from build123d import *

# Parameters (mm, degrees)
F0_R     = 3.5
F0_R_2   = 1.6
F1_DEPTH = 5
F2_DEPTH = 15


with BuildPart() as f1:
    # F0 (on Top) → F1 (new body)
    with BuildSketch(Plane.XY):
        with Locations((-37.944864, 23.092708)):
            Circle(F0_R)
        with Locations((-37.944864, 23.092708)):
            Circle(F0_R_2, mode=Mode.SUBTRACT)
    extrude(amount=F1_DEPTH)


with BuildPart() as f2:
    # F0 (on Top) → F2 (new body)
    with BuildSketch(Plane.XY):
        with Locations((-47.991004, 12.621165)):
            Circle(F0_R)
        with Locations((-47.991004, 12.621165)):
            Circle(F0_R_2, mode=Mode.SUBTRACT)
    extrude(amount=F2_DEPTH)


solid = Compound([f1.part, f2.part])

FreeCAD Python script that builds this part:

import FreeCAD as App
import Part
import Sketcher
from FreeCAD import Vector
Q = App.Units.Quantity

doc = App.newDocument("Part")
body = doc.addObject("PartDesign::Body", "Body")

sketch1 = body.newObject("Sketcher::SketchObject", "Sketch")
sketch1.AttachmentSupport = (doc.getObject("XY_Plane"), [""])
sketch1.MapMode = "FlatFace"
sketch1.addGeometry(Part.Circle(Vector(-37.9, 23.1, 0), Vector(0, 0, 1), 3.5), False)
sketch1.addGeometry(Part.Circle(Vector(-37.9, 23.1, 0), Vector(0, 0, 1), 1.6), False)
sketch1.addConstraint(Sketcher.Constraint("Coincident", 1, 3, 0, 3))
sketch1.addConstraint(Sketcher.Constraint("Diameter", 0, Q("7 mm")))
sketch1.addConstraint(Sketcher.Constraint("Diameter", 1, Q("3.2 mm")))
sketch1.addConstraint(Sketcher.Constraint("DistanceX", 0, 3, -1, 1, Q("37.944864 mm")))
sketch1.addConstraint(Sketcher.Constraint("DistanceY", -1, 1, 0, 3, Q("23.092708 mm")))
pad1 = body.newObject("PartDesign::Pad", "Pad")
pad1.Profile = sketch1
pad1.Length = 5
body2 = doc.addObject("PartDesign::Body", "Body001")

sketch2 = body2.newObject("Sketcher::SketchObject", "Sketch001")
sketch2.AttachmentSupport = (doc.getObject("XY_Plane001"), [""])
sketch2.MapMode = "FlatFace"
sketch2.addGeometry(Part.Circle(Vector(-48, 12.6, 0), Vector(0, 0, 1), 3.5), False)
sketch2.addGeometry(Part.Circle(Vector(-48, 12.6, 0), Vector(0, 0, 1), 1.6), False)
sketch2.addConstraint(Sketcher.Constraint("Coincident", 1, 3, 0, 3))
sketch2.addConstraint(Sketcher.Constraint("Diameter", 0, Q("7 mm")))
sketch2.addConstraint(Sketcher.Constraint("Diameter", 1, Q("3.2 mm")))
sketch2.addConstraint(Sketcher.Constraint("DistanceX", 0, 3, -1, 1, Q("47.991004 mm")))
sketch2.addConstraint(Sketcher.Constraint("DistanceY", -1, 1, 0, 3, Q("12.621165 mm")))
pad2 = body2.newObject("PartDesign::Pad", "Pad001")
pad2.Profile = sketch2
pad2.Length = 15

doc.recompute()
